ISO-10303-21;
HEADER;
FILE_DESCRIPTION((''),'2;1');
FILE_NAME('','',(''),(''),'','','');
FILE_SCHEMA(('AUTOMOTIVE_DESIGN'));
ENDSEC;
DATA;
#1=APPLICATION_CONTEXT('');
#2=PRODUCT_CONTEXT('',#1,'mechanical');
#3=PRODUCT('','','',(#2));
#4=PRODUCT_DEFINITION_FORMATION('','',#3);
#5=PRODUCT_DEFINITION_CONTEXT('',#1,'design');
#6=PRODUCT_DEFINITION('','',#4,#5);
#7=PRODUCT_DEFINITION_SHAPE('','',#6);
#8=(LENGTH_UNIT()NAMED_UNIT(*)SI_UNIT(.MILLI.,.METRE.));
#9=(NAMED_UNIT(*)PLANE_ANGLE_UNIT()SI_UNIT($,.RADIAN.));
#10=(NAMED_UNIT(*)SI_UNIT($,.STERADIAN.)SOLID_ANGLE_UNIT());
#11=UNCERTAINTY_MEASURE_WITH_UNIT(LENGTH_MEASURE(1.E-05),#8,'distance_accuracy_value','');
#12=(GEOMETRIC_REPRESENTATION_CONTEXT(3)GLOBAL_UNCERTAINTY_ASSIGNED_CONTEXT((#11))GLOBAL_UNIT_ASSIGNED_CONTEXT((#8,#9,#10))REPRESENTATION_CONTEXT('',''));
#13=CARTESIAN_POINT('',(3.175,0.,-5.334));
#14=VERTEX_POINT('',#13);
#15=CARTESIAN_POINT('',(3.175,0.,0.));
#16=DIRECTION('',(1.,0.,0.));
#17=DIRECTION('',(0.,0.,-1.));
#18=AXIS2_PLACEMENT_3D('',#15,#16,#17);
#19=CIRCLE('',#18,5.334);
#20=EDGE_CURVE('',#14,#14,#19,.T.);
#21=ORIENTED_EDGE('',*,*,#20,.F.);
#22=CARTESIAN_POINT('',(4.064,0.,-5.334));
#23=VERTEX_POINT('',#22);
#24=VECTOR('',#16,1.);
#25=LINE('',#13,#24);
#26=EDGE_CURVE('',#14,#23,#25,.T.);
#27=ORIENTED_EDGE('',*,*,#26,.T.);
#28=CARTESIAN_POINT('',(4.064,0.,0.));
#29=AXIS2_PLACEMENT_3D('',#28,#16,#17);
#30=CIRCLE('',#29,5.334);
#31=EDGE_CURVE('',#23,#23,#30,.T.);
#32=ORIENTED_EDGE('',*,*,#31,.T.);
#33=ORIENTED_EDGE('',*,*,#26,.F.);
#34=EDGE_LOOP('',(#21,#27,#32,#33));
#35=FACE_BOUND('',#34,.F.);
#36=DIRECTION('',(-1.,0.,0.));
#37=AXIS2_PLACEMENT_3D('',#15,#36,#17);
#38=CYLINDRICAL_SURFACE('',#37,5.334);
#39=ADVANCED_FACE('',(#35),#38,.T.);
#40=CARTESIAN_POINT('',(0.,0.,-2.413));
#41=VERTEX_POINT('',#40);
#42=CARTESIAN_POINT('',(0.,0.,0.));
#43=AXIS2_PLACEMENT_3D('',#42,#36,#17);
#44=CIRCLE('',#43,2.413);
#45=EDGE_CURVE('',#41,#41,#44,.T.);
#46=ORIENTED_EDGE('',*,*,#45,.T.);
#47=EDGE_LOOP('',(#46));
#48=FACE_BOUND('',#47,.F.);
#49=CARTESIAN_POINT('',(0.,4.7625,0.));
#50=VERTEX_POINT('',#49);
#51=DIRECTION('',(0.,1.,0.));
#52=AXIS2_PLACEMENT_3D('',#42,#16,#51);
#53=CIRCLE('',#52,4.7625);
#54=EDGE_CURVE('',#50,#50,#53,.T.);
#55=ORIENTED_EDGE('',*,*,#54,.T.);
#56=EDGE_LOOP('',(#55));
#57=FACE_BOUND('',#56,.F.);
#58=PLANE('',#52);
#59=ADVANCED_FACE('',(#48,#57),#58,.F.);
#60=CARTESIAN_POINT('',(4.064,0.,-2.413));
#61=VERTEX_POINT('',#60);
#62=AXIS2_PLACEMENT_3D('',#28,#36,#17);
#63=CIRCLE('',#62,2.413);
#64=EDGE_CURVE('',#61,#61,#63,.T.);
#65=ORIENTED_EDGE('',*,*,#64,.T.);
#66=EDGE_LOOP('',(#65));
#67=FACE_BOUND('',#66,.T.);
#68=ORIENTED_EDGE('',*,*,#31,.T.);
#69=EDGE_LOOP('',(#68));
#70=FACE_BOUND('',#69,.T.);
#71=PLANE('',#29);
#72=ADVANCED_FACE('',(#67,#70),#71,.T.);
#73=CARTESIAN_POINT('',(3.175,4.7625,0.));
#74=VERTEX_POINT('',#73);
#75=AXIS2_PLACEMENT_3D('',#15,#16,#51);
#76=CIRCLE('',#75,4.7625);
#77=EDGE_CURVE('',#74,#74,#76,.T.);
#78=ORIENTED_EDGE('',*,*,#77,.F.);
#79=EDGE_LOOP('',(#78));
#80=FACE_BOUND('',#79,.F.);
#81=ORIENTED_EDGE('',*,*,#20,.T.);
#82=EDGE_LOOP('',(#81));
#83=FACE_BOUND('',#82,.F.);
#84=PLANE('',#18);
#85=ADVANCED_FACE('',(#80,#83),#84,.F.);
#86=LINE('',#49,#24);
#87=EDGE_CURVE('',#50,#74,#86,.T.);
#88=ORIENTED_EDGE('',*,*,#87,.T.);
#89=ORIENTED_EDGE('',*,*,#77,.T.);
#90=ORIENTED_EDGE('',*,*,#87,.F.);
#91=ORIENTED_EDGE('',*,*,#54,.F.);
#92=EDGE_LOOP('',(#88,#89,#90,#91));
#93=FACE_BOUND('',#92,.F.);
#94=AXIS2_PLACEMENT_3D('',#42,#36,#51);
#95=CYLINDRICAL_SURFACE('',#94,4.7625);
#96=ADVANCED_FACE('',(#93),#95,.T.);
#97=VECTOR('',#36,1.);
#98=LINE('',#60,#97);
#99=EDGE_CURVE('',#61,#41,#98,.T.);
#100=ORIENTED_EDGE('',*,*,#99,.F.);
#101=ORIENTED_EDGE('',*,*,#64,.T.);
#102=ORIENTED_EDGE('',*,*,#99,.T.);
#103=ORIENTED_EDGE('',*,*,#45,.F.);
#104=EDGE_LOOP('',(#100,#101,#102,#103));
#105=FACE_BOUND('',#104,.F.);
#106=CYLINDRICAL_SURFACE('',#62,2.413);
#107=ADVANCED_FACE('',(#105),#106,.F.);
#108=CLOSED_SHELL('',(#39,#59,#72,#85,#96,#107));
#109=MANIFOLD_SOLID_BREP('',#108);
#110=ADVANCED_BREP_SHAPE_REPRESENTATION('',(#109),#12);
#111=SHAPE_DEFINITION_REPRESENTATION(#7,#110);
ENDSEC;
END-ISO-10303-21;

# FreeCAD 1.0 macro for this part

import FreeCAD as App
import Part
import Sketcher
Q = App.Units.Quantity

doc = App.newDocument("Part")
body = doc.addObject("PartDesign::Body", "Body")

# Sketch on YZ plane
sketch1 = doc.addObject("Sketcher::SketchObject", "Sketch")
body.addObject(sketch1)
sketch1.AttachmentSupport = (doc.YZ_Plane, [""])
sketch1.MapMode = "FlatFace"
sketch1.addGeometry(Part.Circle(App.Vector(0, 0, 0), App.Vector(0, 0, 1), 4.8), False)
sketch1.addConstraint(Sketcher.Constraint("Coincident", 0, 3, -1, 1))
sketch1.addConstraint(Sketcher.Constraint("Diameter", 0, Q("0.375 in")))
pad1 = doc.addObject("PartDesign::Pad", "Pad")
body.addObject(pad1)
pad1.Profile = sketch1
pad1.Length = Q("0.125 in")

# Sketch on YZ plane
sketch2 = doc.addObject("Sketcher::SketchObject", "Sketch001")
body.addObject(sketch2)
sketch2.AttachmentSupport = (doc.YZ_Plane, [""])
sketch2.MapMode = "FlatFace"
sketch2.AttachmentOffset = App.Placement(App.Vector(0, 0, 0.125 * 25.4), App.Rotation())
sketch2.addGeometry(Part.Circle(App.Vector(0, 0, 0), App.Vector(0, 0, 1), 5), False)
sketch2.addConstraint(Sketcher.Constraint("Coincident", 0, 3, -1, 1))
sketch2.addConstraint(Sketcher.Constraint("Diameter", 0, Q("0.42 in")))
pad2 = doc.addObject("PartDesign::Pad", "Pad001")
body.addObject(pad2)
pad2.Profile = sketch2
pad2.Length = Q("0.035 in")

# Sketch on YZ plane
sketch3 = doc.addObject("Sketcher::SketchObject", "Sketch002")
body.addObject(sketch3)
sketch3.AttachmentSupport = (doc.YZ_Plane, [""])
sketch3.MapMode = "FlatFace"
sketch3.AttachmentOffset = App.Placement(App.Vector(0, 0, 0.16 * 25.4), App.Rotation())
sketch3.addGeometry(Part.Circle(App.Vector(0, 0, 0), App.Vector(0, 0, 1), 2.4), False)
sketch3.addConstraint(Sketcher.Constraint("Coincident", 0, 3, -1, 1))
sketch3.addConstraint(Sketcher.Constraint("Diameter", 0, Q("0.19 in")))
doc.recompute()
hole = doc.addObject("PartDesign::Hole", "Hole")
body.addObject(hole)
hole.Profile = sketch3
hole.ThreadType = "None"
hole.Diameter = Q("0.19 in")
hole.DepthType = "ThroughAll"

doc.recompute()
